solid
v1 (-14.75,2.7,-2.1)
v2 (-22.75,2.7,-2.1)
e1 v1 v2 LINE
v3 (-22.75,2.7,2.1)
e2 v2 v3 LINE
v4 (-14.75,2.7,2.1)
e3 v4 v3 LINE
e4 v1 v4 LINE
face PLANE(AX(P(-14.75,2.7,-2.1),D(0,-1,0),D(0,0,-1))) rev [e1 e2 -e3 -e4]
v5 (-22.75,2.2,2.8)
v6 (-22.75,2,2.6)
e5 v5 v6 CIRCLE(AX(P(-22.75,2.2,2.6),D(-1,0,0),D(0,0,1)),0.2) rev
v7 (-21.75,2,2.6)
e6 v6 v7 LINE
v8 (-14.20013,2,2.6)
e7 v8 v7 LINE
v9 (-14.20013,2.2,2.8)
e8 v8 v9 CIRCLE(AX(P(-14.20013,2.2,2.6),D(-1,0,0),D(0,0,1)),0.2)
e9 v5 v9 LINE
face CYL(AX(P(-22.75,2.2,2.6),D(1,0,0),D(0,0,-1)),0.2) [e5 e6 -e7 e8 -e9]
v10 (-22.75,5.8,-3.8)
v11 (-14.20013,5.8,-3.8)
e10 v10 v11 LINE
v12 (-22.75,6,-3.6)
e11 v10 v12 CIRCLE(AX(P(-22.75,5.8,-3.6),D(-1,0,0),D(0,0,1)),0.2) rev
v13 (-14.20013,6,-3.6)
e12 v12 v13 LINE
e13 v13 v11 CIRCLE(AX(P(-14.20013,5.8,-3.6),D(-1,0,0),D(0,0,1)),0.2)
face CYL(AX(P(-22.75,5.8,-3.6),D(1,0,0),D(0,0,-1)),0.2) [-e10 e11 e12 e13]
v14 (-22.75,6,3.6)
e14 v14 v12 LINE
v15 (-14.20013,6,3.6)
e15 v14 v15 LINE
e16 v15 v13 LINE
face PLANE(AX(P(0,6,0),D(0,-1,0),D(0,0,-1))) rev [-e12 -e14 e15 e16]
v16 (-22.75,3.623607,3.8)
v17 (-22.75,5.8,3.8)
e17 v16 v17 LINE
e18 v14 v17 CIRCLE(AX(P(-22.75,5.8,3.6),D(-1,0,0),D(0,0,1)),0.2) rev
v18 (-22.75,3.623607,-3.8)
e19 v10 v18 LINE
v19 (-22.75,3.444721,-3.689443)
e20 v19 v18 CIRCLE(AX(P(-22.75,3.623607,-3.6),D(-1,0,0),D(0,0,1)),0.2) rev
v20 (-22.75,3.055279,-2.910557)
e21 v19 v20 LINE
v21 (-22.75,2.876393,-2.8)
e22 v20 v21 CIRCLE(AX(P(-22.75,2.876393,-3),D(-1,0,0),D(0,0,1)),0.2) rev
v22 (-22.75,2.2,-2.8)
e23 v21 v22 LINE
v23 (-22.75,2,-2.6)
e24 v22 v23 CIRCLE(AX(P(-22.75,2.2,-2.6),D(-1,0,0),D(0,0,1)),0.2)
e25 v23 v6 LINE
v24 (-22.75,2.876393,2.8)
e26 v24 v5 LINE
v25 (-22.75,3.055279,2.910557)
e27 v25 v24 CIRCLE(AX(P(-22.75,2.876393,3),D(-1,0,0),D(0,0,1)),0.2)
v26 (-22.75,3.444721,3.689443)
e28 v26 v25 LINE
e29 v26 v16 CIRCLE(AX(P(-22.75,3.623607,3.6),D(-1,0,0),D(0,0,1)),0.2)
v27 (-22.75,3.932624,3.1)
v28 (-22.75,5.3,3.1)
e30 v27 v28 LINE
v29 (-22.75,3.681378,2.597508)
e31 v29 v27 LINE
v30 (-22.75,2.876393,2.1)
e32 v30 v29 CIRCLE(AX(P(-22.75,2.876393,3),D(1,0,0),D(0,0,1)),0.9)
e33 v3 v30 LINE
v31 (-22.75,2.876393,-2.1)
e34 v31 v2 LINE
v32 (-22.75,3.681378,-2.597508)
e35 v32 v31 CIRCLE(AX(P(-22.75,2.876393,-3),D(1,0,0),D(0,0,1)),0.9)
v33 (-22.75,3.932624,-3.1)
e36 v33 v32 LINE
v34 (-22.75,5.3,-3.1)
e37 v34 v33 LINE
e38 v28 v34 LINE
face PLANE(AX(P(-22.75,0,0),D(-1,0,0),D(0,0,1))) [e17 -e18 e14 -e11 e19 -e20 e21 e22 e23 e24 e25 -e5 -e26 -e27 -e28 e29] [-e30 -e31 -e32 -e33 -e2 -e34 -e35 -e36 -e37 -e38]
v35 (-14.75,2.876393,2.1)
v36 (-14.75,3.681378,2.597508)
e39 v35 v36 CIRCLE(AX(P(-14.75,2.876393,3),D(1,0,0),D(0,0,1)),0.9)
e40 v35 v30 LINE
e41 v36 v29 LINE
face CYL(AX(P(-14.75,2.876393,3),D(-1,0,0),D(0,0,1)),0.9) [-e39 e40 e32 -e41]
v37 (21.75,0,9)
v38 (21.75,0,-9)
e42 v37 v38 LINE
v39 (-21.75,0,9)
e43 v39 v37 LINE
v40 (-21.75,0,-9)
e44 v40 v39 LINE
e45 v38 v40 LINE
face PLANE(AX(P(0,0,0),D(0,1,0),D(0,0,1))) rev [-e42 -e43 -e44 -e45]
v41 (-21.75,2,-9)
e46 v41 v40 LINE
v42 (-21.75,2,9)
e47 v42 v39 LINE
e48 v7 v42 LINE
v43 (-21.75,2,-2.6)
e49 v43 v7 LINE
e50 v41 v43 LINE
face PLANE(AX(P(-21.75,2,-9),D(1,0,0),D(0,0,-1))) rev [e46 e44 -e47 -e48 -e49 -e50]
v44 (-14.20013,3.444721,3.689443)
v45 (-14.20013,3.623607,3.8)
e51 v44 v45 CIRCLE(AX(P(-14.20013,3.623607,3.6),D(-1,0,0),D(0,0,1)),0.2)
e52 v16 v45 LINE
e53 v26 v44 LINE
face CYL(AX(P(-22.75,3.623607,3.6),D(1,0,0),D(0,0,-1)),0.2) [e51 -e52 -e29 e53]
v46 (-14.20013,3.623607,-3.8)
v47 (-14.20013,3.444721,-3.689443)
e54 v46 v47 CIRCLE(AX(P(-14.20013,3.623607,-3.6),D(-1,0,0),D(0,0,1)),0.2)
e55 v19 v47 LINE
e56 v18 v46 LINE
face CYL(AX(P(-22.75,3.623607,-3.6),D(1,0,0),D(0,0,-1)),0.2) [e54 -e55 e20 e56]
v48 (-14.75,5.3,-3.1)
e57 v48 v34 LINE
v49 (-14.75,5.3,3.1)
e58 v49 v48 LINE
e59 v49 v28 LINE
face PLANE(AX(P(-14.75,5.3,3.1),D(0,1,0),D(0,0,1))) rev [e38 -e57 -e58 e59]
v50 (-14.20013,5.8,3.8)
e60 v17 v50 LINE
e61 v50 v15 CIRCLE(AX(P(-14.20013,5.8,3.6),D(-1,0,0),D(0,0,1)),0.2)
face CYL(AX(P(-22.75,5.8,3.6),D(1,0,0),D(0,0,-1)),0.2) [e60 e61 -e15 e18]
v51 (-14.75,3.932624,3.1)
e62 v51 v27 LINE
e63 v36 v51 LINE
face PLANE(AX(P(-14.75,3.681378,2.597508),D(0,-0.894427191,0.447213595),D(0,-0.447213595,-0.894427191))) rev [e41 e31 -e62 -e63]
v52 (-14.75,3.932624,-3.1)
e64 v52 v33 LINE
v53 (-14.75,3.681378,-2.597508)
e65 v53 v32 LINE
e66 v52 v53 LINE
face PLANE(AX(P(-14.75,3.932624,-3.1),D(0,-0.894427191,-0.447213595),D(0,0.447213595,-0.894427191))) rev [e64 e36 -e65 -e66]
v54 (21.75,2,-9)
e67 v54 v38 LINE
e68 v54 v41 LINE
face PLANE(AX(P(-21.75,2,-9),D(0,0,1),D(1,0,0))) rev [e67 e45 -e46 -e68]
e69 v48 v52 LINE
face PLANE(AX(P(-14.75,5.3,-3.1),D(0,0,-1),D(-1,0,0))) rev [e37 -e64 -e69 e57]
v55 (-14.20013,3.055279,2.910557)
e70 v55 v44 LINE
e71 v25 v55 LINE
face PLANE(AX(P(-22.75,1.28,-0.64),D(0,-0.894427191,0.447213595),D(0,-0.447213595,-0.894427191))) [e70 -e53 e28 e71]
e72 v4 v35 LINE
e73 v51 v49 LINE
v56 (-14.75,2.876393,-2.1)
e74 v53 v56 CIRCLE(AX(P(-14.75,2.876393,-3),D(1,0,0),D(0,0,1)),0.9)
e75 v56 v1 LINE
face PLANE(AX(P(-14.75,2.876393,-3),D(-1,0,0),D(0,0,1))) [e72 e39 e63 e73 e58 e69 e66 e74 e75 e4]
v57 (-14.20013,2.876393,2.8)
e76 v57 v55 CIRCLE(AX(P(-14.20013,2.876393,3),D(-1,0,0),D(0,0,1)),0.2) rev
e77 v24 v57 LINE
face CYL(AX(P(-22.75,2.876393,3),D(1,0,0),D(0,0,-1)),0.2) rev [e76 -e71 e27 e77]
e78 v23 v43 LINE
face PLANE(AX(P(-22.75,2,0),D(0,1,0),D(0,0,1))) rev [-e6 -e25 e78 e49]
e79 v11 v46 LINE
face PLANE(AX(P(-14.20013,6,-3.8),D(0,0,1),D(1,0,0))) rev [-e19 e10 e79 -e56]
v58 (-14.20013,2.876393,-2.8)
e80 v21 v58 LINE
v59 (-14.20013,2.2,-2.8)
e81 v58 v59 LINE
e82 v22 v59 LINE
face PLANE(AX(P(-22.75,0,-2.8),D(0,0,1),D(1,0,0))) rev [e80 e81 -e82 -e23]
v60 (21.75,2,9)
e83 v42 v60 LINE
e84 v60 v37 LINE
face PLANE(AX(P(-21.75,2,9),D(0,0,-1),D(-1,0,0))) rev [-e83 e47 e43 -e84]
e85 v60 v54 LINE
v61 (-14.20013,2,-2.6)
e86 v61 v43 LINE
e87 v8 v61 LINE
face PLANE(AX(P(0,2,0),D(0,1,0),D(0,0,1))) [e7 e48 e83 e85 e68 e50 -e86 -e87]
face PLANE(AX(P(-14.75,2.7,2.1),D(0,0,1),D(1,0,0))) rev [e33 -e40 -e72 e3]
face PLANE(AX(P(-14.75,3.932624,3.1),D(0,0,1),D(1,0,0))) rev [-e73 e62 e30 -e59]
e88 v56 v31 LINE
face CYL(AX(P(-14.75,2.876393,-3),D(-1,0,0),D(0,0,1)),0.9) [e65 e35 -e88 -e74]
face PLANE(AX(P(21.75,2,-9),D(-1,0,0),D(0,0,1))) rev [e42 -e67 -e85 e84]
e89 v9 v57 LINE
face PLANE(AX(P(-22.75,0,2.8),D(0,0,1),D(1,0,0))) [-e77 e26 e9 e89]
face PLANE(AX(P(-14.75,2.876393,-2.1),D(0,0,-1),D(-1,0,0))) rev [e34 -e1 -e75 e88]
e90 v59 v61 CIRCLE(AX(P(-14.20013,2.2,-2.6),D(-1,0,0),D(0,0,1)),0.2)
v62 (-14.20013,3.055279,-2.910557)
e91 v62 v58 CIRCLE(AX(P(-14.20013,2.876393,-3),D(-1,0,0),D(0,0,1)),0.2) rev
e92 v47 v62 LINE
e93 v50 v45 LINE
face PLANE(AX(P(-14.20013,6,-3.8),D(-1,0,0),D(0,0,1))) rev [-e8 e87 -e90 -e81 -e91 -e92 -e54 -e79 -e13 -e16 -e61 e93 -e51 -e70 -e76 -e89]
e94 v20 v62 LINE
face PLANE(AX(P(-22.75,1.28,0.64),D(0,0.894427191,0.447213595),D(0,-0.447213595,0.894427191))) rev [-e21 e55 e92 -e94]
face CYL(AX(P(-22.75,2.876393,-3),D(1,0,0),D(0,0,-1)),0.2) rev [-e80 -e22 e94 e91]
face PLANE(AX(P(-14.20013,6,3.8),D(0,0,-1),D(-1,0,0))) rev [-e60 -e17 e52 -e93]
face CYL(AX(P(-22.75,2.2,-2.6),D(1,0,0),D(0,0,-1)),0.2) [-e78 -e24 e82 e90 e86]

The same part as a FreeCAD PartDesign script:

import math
import FreeCAD as App
import Part
import Sketcher

doc = App.newDocument("Part")
params = doc.addObject("Spreadsheet::Sheet", "Params")
for row, (alias, value) in enumerate([
    ("sketch1_height", "18 mm"),
    ("sketch1_width", "43.5 mm"),
    ("pad1_length", "2 mm"),
    ("sketch2_height", "7.6 mm"),
    ("pad2_length", "4 mm"),
    ("sketch3_radius", "0.2 mm"),
    ("sketch3_height", "5.2 mm"),
    ("sketch3_height2", "7.2 mm"),
    ("pad3_length", "1 mm"),
    ("sketch4_radius", "0.2 mm"),
    ("sketch4_height", "1.2 mm"),
    ("pocket1_length", "15 mm"),
    ("sketch5_radius", "0.9 mm"),
    ("sketch5_height", "6.2 mm"),
    ("sketch5_height2", "4.2 mm"),
    ("pocket2_length", "8 mm"),
], start=1):
    params.set(f"A{row}", alias)
    params.set(f"B{row}", "=" + value)
    params.setAlias(f"B{row}", alias)

body = doc.addObject("PartDesign::Body", "Body")

# Sketch on XZ plane
sketch1 = body.newObject("Sketcher::SketchObject", "Sketch")
sketch1.AttachmentSupport = (doc.getObject("XZ_Plane"), [""])
sketch1.MapMode = "FlatFace"
sketch1.addGeometry([
    Part.LineSegment(App.Vector(-22, -9, 0), App.Vector(-22, 9, 0)),
    Part.LineSegment(App.Vector(-22, 9, 0), App.Vector(22, 9, 0)),
    Part.LineSegment(App.Vector(22, 9, 0), App.Vector(22, -9, 0)),
    Part.LineSegment(App.Vector(22, -9, 0), App.Vector(-22, -9, 0)),
], False)
sketch1.addConstraint([
    Sketcher.Constraint("Coincident", 0, 2, 1, 1),
    Sketcher.Constraint("Coincident", 1, 2, 2, 1),
    Sketcher.Constraint("Coincident", 2, 2, 3, 1),
    Sketcher.Constraint("Coincident", 3, 2, 0, 1),
    Sketcher.Constraint("Vertical", 0),
    Sketcher.Constraint("Horizontal", 1),
    Sketcher.Constraint("Vertical", 2),
    Sketcher.Constraint("Horizontal", 3),
    Sketcher.Constraint("Symmetric", 0, 2, 2, 2, -1, 1),
    Sketcher.Constraint("DistanceY", 0, 1, 0, 2, 18.0),
    Sketcher.Constraint("DistanceX", 1, 1, 1, 2, 43.5),
])
sketch1.setExpression("Constraints[9]", "Params.sketch1_height")
sketch1.setExpression("Constraints[10]", "Params.sketch1_width")
pad1 = body.newObject("PartDesign::Pad", "Pad")
pad1.Profile = sketch1
pad1.setExpression("Length", "Params.pad1_length")
pad1.Reversed = True

# Sketch on XZ plane
sketch2 = body.newObject("Sketcher::SketchObject", "Sketch001")
sketch2.AttachmentSupport = (doc.getObject("XZ_Plane"), [""])
sketch2.MapMode = "FlatFace"
sketch2.AttachmentOffset = App.Placement(App.Vector(0, 0, -2), App.Rotation())
sketch2.addGeometry([
    Part.LineSegment(App.Vector(-22, -4, 0), App.Vector(-22, 4, 0)),
    Part.LineSegment(App.Vector(-22, 4, 0), App.Vector(-14, 4, 0)),
    Part.LineSegment(App.Vector(-14, 4, 0), App.Vector(-14, -4, 0)),
    Part.LineSegment(App.Vector(-14, -4, 0), App.Vector(-22, -4, 0)),
], False)
sketch2.addConstraint([
    Sketcher.Constraint("Coincident", 0, 2, 1, 1),
    Sketcher.Constraint("Coincident", 1, 2, 2, 1),
    Sketcher.Constraint("Coincident", 2, 2, 3, 1),
    Sketcher.Constraint("Coincident", 3, 2, 0, 1),
    Sketcher.Constraint("Vertical", 0),
    Sketcher.Constraint("Horizontal", 1),
    Sketcher.Constraint("Vertical", 2),
    Sketcher.Constraint("Horizontal", 3),
    Sketcher.Constraint("DistanceY", 0, 1, 0, 2, 7.6),
    Sketcher.Constraint("DistanceY", -1, 1, 0, 2, 3.8),
    Sketcher.Constraint("DistanceX", 0, 2, -1, 1, 21.75),
    Sketcher.Constraint("DistanceX", 1, 1, 1, 2, 7.54987),
])
sketch2.setExpression("Constraints[8]", "Params.sketch2_height")
pad2 = body.newObject("PartDesign::Pad", "Pad001")
pad2.Profile = sketch2
pad2.setExpression("Length", "Params.pad2_length")
pad2.Reversed = True

# Sketch on YZ plane
sketch3 = body.newObject("Sketcher::SketchObject", "Sketch002")
sketch3.AttachmentSupport = (doc.getObject("YZ_Plane"), [""])
sketch3.MapMode = "FlatFace"
sketch3.AttachmentOffset = App.Placement(App.Vector(0, 0, -21.75), App.Rotation())
sketch3.addGeometry([
    Part.ArcOfCircle(Part.Circle(App.Vector(3.62, -3.6, 0), App.Vector(0, 0, 1), 0.2), math.radians(-153), math.radians(-90)),  # 0
    Part.LineSegment(App.Vector(3.44, -3.69, 0), App.Vector(3.06, -2.91, 0)),  # 1
    Part.ArcOfCircle(Part.Circle(App.Vector(2.88, -3, 0), App.Vector(0, 0, 1), 0.2), math.radians(27), math.radians(90)),  # 2
    Part.LineSegment(App.Vector(2.88, -2.8, 0), App.Vector(2.2, -2.8, 0)),  # 3
    Part.ArcOfCircle(Part.Circle(App.Vector(2.2, -2.6, 0), App.Vector(0, 0, 1), 0.2), math.radians(-180), math.radians(-90)),  # 4
    Part.LineSegment(App.Vector(2, -2.6, 0), App.Vector(2, 2.6, 0)),  # 5
    Part.ArcOfCircle(Part.Circle(App.Vector(2.2, 2.6, 0), App.Vector(0, 0, 1), 0.2), math.radians(90), math.radians(180)),  # 6
    Part.LineSegment(App.Vector(2.2, 2.8, 0), App.Vector(2.88, 2.8, 0)),  # 7
    Part.ArcOfCircle(Part.Circle(App.Vector(2.88, 3, 0), App.Vector(0, 0, 1), 0.2), math.radians(-90), math.radians(-27)),  # 8
    Part.LineSegment(App.Vector(3.06, 2.91, 0), App.Vector(3.44, 3.69, 0)),  # 9
    Part.ArcOfCircle(Part.Circle(App.Vector(3.62, 3.6, 0), App.Vector(0, 0, 1), 0.2), math.radians(90), math.radians(153)),  # 10
    Part.LineSegment(App.Vector(3.62, 3.8, 0), App.Vector(5.8, 3.8, 0)),  # 11
    Part.ArcOfCircle(Part.Circle(App.Vector(5.8, 3.6, 0), App.Vector(0, 0, 1), 0.2), math.radians(0), math.radians(90)),  # 12
    Part.LineSegment(App.Vector(6, 3.6, 0), App.Vector(6, -3.6, 0)),  # 13
    Part.ArcOfCircle(Part.Circle(App.Vector(5.8, -3.6, 0), App.Vector(0, 0, 1), 0.2), math.radians(-90), math.radians(0)),  # 14
    Part.LineSegment(App.Vector(5.8, -3.8, 0), App.Vector(3.62, -3.8, 0)),  # 15
], False)
sketch3.addConstraint([
    Sketcher.Constraint("Tangent", 0, 1, 1, 1),
    Sketcher.Constraint("Tangent", 1, 2, 2, 1),
    Sketcher.Constraint("Tangent", 2, 2, 3, 1),
    Sketcher.Constraint("Tangent", 3, 2, 4, 2),
    Sketcher.Constraint("Tangent", 4, 1, 5, 1),
    Sketcher.Constraint("Tangent", 5, 2, 6, 2),
    Sketcher.Constraint("Tangent", 6, 1, 7, 1),
    Sketcher.Constraint("Tangent", 7, 2, 8, 1),
    Sketcher.Constraint("Tangent", 8, 2, 9, 1),
    Sketcher.Constraint("Tangent", 9, 2, 10, 2),
    Sketcher.Constraint("Tangent", 10, 1, 11, 1),
    Sketcher.Constraint("Tangent", 11, 2, 12, 2),
    Sketcher.Constraint("Tangent", 12, 1, 13, 1),
    Sketcher.Constraint("Tangent", 13, 2, 14, 2),
    Sketcher.Constraint("Tangent", 14, 1, 15, 1),
    Sketcher.Constraint("Tangent", 15, 2, 0, 2),
    Sketcher.Constraint("Horizontal", 3),
    Sketcher.Constraint("Vertical", 5),
    Sketcher.Constraint("Horizontal", 7),
    Sketcher.Constraint("Horizontal", 11),
    Sketcher.Constraint("Vertical", 13),
    Sketcher.Constraint("Horizontal", 15),
    Sketcher.Constraint("Equal", 0, 2),
    Sketcher.Constraint("Equal", 2, 4),
    Sketcher.Constraint("Equal", 4, 6),
    Sketcher.Constraint("Equal", 6, 8),
    Sketcher.Constraint("Equal", 8, 10),
    Sketcher.Constraint("Equal", 10, 12),
    Sketcher.Constraint("Equal", 12, 14),
    Sketcher.Constraint("Symmetric", 2, 3, 8, 3, -1),
    Sketcher.Constraint("Symmetric", 0, 3, 10, 3, -1),
    Sketcher.Constraint("Radius", 0, 0.2),
    Sketcher.Constraint("DistanceY", 5, 1, 5, 2, 5.2),
    Sketcher.Constraint("DistanceY", 13, 2, 13, 1, 7.2),
    Sketcher.Constraint("DistanceX", -1, 1, 4, 1, 2.0),
    Sketcher.Constraint("DistanceX", -1, 1, 12, 1, 6.0),
    Sketcher.Constraint("Distance", 1, 0.87082),
    Sketcher.Constraint("DistanceX", 3, 2, 3, 1, 0.676393),
])
sketch3.setExpression("Constraints[31]", "Params.sketch3_radius")
sketch3.setExpression("Constraints[32]", "Params.sketch3_height")
sketch3.setExpression("Constraints[33]", "Params.sketch3_height2")
pad3 = body.newObject("PartDesign::Pad", "Pad002")
pad3.Profile = sketch3
pad3.setExpression("Length", "Params.pad3_length")
pad3.Reversed = True

# Sketch on YZ plane
sketch4 = body.newObject("Sketcher::SketchObject", "Sketch003")
sketch4.AttachmentSupport = (doc.getObject("YZ_Plane"), [""])
sketch4.MapMode = "FlatFace"
sketch4.AttachmentOffset = App.Placement(App.Vector(0, 0, -22.75), App.Rotation())
sketch4.addGeometry([
    Part.LineSegment(App.Vector(3.06, -2.91, 0), App.Vector(3.44, -3.69, 0)),  # 0
    Part.ArcOfCircle(Part.Circle(App.Vector(3.62, -3.6, 0), App.Vector(0, 0, 1), 0.2), math.radians(-153), math.radians(-90)),  # 1
    Part.LineSegment(App.Vector(3.62, -3.8, 0), App.Vector(2, -3.8, 0)),  # 2
    Part.LineSegment(App.Vector(2, -3.8, 0), App.Vector(2, -2.6, 0)),  # 3
    Part.ArcOfCircle(Part.Circle(App.Vector(2.2, -2.6, 0), App.Vector(0, 0, 1), 0.2), math.radians(-180), math.radians(-90)),  # 4
    Part.LineSegment(App.Vector(2.2, -2.8, 0), App.Vector(2.88, -2.8, 0)),  # 5
    Part.ArcOfCircle(Part.Circle(App.Vector(2.88, -3, 0), App.Vector(0, 0, 1), 0.2), math.radians(27), math.radians(90)),  # 6
    Part.LineSegment(App.Vector(6, -3.8, 0), App.Vector(5.8, -3.8, 0)),  # 7
    Part.ArcOfCircle(Part.Circle(App.Vector(5.8, -3.6, 0), App.Vector(0, 0, 1), 0.2), math.radians(-90), math.radians(0)),  # 8
    Part.LineSegment(App.Vector(6, -3.6, 0), App.Vector(6, -3.8, 0)),  # 9
    Part.ArcOfCircle(Part.Circle(App.Vector(2.88, 3, 0), App.Vector(0, 0, 1), 0.2), math.radians(-90), math.radians(-27)),  # 10
    Part.LineSegment(App.Vector(2.88, 2.8, 0), App.Vector(2.2, 2.8, 0)),  # 11
    Part.ArcOfCircle(Part.Circle(App.Vector(2.2, 2.6, 0), App.Vector(0, 0, 1), 0.2), math.radians(90), math.radians(180)),  # 12
    Part.LineSegment(App.Vector(2, 2.6, 0), App.Vector(2, 3.8, 0)),  # 13
    Part.LineSegment(App.Vector(2, 3.8, 0), App.Vector(3.62, 3.8, 0)),  # 14
    Part.ArcOfCircle(Part.Circle(App.Vector(3.62, 3.6, 0), App.Vector(0, 0, 1), 0.2), math.radians(90), math.radians(153)),  # 15
    Part.LineSegment(App.Vector(3.44, 3.69, 0), App.Vector(3.06, 2.91, 0)),  # 16
    Part.LineSegment(App.Vector(6, 3.8, 0), App.Vector(6, 3.6, 0)),  # 17
    Part.ArcOfCircle(Part.Circle(App.Vector(5.8, 3.6, 0), App.Vector(0, 0, 1), 0.2), math.radians(0), math.radians(90)),  # 18
    Part.LineSegment(App.Vector(5.8, 3.8, 0), App.Vector(6, 3.8, 0)),  # 19
], False)
sketch4.addConstraint([
    Sketcher.Constraint("Tangent", 0, 2, 1, 1),
    Sketcher.Constraint("Tangent", 1, 2, 2, 1),
    Sketcher.Constraint("Coincident", 2, 2, 3, 1),
    Sketcher.Constraint("Tangent", 3, 2, 4, 1),
    Sketcher.Constraint("Tangent", 4, 2, 5, 1),
    Sketcher.Constraint("Tangent", 5, 2, 6, 2),
    Sketcher.Constraint("Tangent", 6, 1, 0, 1),
    Sketcher.Constraint("Tangent", 7, 2, 8, 1),
    Sketcher.Constraint("Tangent", 8, 2, 9, 1),
    Sketcher.Constraint("Coincident", 9, 2, 7, 1),
    Sketcher.Constraint("Tangent", 10, 1, 11, 1),
    Sketcher.Constraint("Tangent", 11, 2, 12, 1),
    Sketcher.Constraint("Tangent", 12, 2, 13, 1),
    Sketcher.Constraint("Coincident", 13, 2, 14, 1),
    Sketcher.Constraint("Tangent", 14, 2, 15, 1),
    Sketcher.Constraint("Tangent", 15, 2, 16, 1),
    Sketcher.Constraint("Tangent", 16, 2, 10, 2),
    Sketcher.Constraint("Tangent", 17, 2, 18, 1),
    Sketcher.Constraint("Tangent", 18, 2, 19, 1),
    Sketcher.Constraint("Coincident", 19, 2, 17, 1),
    Sketcher.Constraint("Horizontal", 2),
    Sketcher.Constraint("Vertical", 3),
    Sketcher.Constraint("Horizontal", 5),
    Sketcher.Constraint("Horizontal", 7),
    Sketcher.Constraint("Vertical", 9),
    Sketcher.Constraint("Horizontal", 11),
    Sketcher.Constraint("Vertical", 13),
    Sketcher.Constraint("Horizontal", 14),
    Sketcher.Constraint("Vertical", 17),
    Sketcher.Constraint("Horizontal", 19),
    Sketcher.Constraint("Equal", 1, 4),
    Sketcher.Constraint("Equal", 4, 6),
    Sketcher.Constraint("Equal", 6, 8),
    Sketcher.Constraint("Equal", 8, 10),
    Sketcher.Constraint("Equal", 10, 12),
    Sketcher.Constraint("Equal", 12, 15),
    Sketcher.Constraint("Equal", 15, 18),
    Sketcher.Constraint("Symmetric", 6, 3, 10, 3, -1),
    Sketcher.Constraint("Symmetric", 1, 3, 15, 3, -1),
    Sketcher.Constraint("Symmetric", 8, 3, 18, 3, -1),
    Sketcher.Constraint("Horizontal", 1, 3, 8, 3),
    Sketcher.Constraint("Vertical", 4, 3, 12, 3),
    Sketcher.Constraint("Radius", 1, 0.2),
    Sketcher.Constraint("DistanceY", 3, 1, 3, 2, 1.2),
    Sketcher.Constraint("DistanceY", 6, 3, -1, 1, 3.0),
    Sketcher.Constraint("DistanceX", -1, 1, 2, 2, 2.0),
    Sketcher.Constraint("DistanceX", -1, 1, 8, 2, 6.0),
    Sketcher.Constraint("Distance", 0, 0.87082),
    Sketcher.Constraint("DistanceX", 2, 2, 2, 1, 1.623607),
])
sketch4.setExpression("Constraints[42]", "Params.sketch4_radius")
sketch4.setExpression("Constraints[43]", "Params.sketch4_height")
pocket1 = body.newObject("PartDesign::Pocket", "Pocket")
pocket1.Profile = sketch4
pocket1.setExpression("Length", "Params.pocket1_length")
pocket1.Reversed = True

# Sketch on YZ plane
sketch5 = body.newObject("Sketcher::SketchObject", "Sketch004")
sketch5.AttachmentSupport = (doc.getObject("YZ_Plane"), [""])
sketch5.MapMode = "FlatFace"
sketch5.AttachmentOffset = App.Placement(App.Vector(0, 0, -22.75), App.Rotation())
sketch5.addGeometry([
    Part.LineSegment(App.Vector(5.3, 3.1, 0), App.Vector(5.3, -3.1, 0)),  # 0
    Part.LineSegment(App.Vector(5.3, -3.1, 0), App.Vector(3.93, -3.1, 0)),  # 1
    Part.LineSegment(App.Vector(3.93, -3.1, 0), App.Vector(3.68, -2.6, 0)),  # 2
    Part.ArcOfCircle(Part.Circle(App.Vector(2.88, -3, 0), App.Vector(0, 0, 1), 0.9), math.radians(27), math.radians(90)),  # 3
    Part.LineSegment(App.Vector(2.88, -2.1, 0), App.Vector(2.7, -2.1, 0)),  # 4
    Part.LineSegment(App.Vector(2.7, -2.1, 0), App.Vector(2.7, 2.1, 0)),  # 5
    Part.LineSegment(App.Vector(2.7, 2.1, 0), App.Vector(2.88, 2.1, 0)),  # 6
    Part.ArcOfCircle(Part.Circle(App.Vector(2.88, 3, 0), App.Vector(0, 0, 1), 0.9), math.radians(-90), math.radians(-27)),  # 7
    Part.LineSegment(App.Vector(3.68, 2.6, 0), App.Vector(3.93, 3.1, 0)),  # 8
    Part.LineSegment(App.Vector(3.93, 3.1, 0), App.Vector(5.3, 3.1, 0)),  # 9
], False)
sketch5.addConstraint([
    Sketcher.Constraint("Coincident", 0, 2, 1, 1),
    Sketcher.Constraint("Coincident", 1, 2, 2, 1),
    Sketcher.Constraint("Tangent", 2, 2, 3, 1),
    Sketcher.Constraint("Tangent", 3, 2, 4, 1),
    Sketcher.Constraint("Coincident", 4, 2, 5, 1),
    Sketcher.Constraint("Coincident", 5, 2, 6, 1),
    Sketcher.Constraint("Tangent", 6, 2, 7, 1),
    Sketcher.Constraint("Tangent", 7, 2, 8, 1),
    Sketcher.Constraint("Coincident", 8, 2, 9, 1),
    Sketcher.Constraint("Coincident", 9, 2, 0, 1),
    Sketcher.Constraint("Vertical", 0),
    Sketcher.Constraint("Horizontal", 1),
    Sketcher.Constraint("Horizontal", 4),
    Sketcher.Constraint("Vertical", 5),
    Sketcher.Constraint("Horizontal", 6),
    Sketcher.Constraint("Horizontal", 9),
    Sketcher.Constraint("Equal", 3, 7),
    Sketcher.Constraint("Symmetric", 3, 3, 7, 3, -1),
    Sketcher.Constraint("Symmetric", 1, 2, 8, 2, -1),
    Sketcher.Constraint("Radius", 3, 0.9),
    Sketcher.Constraint("DistanceY", 0, 2, 0, 1, 6.2),
    Sketcher.Constraint("DistanceY", 5, 1, 5, 2, 4.2),
    Sketcher.Constraint("DistanceX", -1, 1, 0, 2, 5.3),
    Sketcher.Constraint("DistanceX", -1, 1, 4, 2, 2.7),
    Sketcher.Constraint("DistanceX", 1, 2, 1, 1, 1.367376),
    Sketcher.Constraint("DistanceX", 4, 2, 4, 1, 0.176393),
])
sketch5.setExpression("Constraints[19]", "Params.sketch5_radius")
sketch5.setExpression("Constraints[20]", "Params.sketch5_height")
sketch5.setExpression("Constraints[21]", "Params.sketch5_height2")
pocket2 = body.newObject("PartDesign::Pocket", "Pocket001")
pocket2.Profile = sketch5
pocket2.setExpression("Length", "Params.pocket2_length")
pocket2.Reversed = True

doc.recompute()
